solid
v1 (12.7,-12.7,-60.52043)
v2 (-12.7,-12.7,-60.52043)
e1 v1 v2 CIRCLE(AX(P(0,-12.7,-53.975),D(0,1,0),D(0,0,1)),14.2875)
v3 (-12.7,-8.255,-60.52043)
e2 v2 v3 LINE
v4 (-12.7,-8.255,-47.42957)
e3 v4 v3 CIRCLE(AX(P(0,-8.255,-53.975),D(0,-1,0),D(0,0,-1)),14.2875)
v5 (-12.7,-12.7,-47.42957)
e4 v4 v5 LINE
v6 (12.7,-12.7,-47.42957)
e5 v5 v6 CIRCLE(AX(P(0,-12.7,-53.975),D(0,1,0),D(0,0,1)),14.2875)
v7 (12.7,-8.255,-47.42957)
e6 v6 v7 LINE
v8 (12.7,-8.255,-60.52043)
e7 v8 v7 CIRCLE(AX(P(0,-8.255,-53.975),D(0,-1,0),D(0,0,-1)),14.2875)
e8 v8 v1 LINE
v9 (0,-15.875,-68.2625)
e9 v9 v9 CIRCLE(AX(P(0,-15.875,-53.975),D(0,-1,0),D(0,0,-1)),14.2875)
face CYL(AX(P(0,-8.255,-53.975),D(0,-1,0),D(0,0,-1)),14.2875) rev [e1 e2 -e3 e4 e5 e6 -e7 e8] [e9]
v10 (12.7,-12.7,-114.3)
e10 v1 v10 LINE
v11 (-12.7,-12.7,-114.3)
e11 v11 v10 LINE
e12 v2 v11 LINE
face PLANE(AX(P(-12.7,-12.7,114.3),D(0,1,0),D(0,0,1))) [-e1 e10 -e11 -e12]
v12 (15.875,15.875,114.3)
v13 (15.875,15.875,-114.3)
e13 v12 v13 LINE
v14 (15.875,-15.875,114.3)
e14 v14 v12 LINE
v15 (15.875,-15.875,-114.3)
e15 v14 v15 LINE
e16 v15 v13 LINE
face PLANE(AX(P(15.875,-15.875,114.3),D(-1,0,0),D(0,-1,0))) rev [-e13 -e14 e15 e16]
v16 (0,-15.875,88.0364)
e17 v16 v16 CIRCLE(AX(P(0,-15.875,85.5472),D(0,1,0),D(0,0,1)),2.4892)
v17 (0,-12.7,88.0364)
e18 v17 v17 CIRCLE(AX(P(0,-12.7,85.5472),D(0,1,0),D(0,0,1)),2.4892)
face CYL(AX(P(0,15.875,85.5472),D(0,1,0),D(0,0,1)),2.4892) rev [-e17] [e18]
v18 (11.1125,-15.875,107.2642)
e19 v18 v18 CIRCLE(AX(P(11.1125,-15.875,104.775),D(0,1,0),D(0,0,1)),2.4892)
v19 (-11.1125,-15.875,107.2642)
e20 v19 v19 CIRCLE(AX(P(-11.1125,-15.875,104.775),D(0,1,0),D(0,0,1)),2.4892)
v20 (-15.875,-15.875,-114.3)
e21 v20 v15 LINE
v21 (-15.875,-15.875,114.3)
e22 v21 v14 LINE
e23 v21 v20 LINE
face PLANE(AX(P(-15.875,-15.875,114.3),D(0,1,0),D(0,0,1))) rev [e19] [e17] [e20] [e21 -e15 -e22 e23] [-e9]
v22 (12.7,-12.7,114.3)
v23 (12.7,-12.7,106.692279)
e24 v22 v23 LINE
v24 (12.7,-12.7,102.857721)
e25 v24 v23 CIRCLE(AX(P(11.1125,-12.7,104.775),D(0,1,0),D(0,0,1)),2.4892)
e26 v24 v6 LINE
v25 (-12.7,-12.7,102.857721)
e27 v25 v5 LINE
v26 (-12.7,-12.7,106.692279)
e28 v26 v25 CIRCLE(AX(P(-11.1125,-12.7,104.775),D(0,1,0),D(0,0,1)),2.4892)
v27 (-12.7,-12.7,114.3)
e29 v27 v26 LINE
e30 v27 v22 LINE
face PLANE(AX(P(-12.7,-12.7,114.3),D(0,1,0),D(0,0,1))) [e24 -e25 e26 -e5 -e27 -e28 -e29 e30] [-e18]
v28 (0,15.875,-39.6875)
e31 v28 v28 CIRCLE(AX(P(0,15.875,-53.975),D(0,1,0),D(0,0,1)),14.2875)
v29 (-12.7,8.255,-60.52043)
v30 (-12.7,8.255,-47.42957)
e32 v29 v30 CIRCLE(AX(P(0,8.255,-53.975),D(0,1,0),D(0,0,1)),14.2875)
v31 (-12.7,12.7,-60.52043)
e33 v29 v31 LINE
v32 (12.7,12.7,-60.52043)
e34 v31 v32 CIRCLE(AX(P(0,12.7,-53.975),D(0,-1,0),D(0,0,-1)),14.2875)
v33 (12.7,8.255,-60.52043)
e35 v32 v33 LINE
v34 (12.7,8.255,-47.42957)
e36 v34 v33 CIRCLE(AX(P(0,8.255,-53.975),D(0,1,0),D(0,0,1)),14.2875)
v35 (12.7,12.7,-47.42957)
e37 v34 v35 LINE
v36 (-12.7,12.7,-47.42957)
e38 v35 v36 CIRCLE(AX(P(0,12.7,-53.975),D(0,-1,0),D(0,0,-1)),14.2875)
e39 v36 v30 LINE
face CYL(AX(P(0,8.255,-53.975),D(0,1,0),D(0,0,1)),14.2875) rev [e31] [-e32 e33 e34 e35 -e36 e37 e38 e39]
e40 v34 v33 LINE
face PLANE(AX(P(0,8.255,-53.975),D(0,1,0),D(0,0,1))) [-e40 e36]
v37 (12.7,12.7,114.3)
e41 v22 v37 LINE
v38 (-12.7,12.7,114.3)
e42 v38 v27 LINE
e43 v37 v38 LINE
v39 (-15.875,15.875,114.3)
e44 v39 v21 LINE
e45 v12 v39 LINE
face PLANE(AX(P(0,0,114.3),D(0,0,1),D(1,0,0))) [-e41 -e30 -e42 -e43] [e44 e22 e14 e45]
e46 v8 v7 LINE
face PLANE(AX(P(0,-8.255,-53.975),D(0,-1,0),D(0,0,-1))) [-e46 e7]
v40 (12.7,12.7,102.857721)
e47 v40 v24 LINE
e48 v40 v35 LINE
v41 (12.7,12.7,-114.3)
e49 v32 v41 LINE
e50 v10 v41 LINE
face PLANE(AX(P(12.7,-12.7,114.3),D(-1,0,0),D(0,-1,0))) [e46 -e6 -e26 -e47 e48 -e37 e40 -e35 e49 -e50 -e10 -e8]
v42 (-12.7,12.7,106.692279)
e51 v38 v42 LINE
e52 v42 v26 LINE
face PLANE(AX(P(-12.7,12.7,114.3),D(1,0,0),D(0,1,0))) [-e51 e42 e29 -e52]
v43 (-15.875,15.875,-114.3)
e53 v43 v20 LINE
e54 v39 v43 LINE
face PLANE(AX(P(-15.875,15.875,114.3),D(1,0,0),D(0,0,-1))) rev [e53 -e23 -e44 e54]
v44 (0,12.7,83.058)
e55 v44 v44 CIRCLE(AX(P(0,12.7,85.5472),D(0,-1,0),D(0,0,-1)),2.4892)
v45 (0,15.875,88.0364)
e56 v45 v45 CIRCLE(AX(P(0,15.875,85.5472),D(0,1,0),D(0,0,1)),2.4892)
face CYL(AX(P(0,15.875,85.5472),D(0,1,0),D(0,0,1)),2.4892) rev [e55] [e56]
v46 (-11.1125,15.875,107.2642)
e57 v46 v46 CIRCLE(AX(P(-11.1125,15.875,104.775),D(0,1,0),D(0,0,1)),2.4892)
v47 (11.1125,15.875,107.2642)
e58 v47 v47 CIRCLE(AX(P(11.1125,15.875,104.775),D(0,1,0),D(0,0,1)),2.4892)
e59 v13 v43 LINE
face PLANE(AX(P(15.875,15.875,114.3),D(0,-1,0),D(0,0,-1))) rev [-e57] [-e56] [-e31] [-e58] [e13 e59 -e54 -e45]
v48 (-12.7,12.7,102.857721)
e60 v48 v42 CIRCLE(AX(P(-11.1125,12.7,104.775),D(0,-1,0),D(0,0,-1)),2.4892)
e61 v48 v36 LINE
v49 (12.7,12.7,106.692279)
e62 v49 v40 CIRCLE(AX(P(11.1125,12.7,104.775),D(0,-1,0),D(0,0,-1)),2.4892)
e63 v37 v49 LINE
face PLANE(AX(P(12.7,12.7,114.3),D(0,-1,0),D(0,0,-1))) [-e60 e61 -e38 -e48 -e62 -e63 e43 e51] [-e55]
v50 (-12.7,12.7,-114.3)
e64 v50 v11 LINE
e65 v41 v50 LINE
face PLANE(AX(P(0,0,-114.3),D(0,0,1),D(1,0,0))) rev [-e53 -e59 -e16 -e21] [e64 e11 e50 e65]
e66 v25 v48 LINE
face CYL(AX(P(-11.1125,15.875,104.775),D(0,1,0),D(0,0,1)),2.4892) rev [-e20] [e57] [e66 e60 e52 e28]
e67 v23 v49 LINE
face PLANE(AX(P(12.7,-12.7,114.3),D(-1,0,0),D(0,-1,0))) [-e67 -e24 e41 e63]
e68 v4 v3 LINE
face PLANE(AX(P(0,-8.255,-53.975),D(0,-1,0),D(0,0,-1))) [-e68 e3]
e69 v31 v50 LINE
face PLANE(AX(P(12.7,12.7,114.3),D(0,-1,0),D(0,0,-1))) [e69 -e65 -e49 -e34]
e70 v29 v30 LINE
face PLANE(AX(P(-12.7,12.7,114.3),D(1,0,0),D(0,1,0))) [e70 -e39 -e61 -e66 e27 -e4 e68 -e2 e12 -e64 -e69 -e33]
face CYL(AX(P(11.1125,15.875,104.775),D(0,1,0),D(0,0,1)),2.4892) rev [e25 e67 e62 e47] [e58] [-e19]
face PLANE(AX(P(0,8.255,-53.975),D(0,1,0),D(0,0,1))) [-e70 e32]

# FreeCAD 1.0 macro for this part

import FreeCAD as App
import Part
import Sketcher
from FreeCAD import Vector
Q = App.Units.Quantity

doc = App.newDocument("Part")
body = doc.addObject("PartDesign::Body", "Body")

sketch1 = body.newObject("Sketcher::SketchObject", "Sketch")
sketch1.AttachmentSupport = (doc.getObject("XY_Plane"), [""])
sketch1.MapMode = "FlatFace"
sketch1.addGeometry([
    Part.LineSegment(Vector(-15.875, 15.875, 0), Vector(-15.875, -15.875, 0)),
    Part.LineSegment(Vector(-15.875, -15.875, 0), Vector(15.875, -15.875, 0)),
    Part.LineSegment(Vector(15.875, -15.875, 0), Vector(15.875, 15.875, 0)),
    Part.LineSegment(Vector(15.875, 15.875, 0), Vector(-15.875, 15.875, 0)),
    Part.LineSegment(Vector(12.7, -12.7, 0), Vector(-12.7, -12.7, 0)),
    Part.LineSegment(Vector(-12.7, -12.7, 0), Vector(-12.7, 12.7, 0)),
    Part.LineSegment(Vector(-12.7, 12.7, 0), Vector(12.7, 12.7, 0)),
    Part.LineSegment(Vector(12.7, 12.7, 0), Vector(12.7, -12.7, 0)),
], False)
sketch1.addConstraint([
    Sketcher.Constraint("Coincident", 0, 2, 1, 1),
    Sketcher.Constraint("Coincident", 1, 2, 2, 1),
    Sketcher.Constraint("Coincident", 2, 2, 3, 1),
    Sketcher.Constraint("Coincident", 3, 2, 0, 1),
    Sketcher.Constraint("Coincident", 4, 2, 5, 1),
    Sketcher.Constraint("Coincident", 5, 2, 6, 1),
    Sketcher.Constraint("Coincident", 6, 2, 7, 1),
    Sketcher.Constraint("Coincident", 7, 2, 4, 1),
    Sketcher.Constraint("Vertical", 0),
    Sketcher.Constraint("Horizontal", 1),
    Sketcher.Constraint("Vertical", 2),
    Sketcher.Constraint("Horizontal", 3),
    Sketcher.Constraint("Horizontal", 4),
    Sketcher.Constraint("Vertical", 5),
    Sketcher.Constraint("Horizontal", 6),
    Sketcher.Constraint("Vertical", 7),
    Sketcher.Constraint("Symmetric", 0, 2, 2, 2, -1, 1),
    Sketcher.Constraint("Symmetric", 4, 2, 6, 2, -1, 1),
    Sketcher.Constraint("Equal", 3, 0),
    Sketcher.Constraint("Equal", 6, 5),
    Sketcher.Constraint("DistanceX", 4, 2, 4, 1, Q("1 in")),
    Sketcher.Constraint("DistanceX", 1, 1, 1, 2, Q("1.25 in")),
])
pad1 = body.newObject("PartDesign::Pad", "Pad")
pad1.Profile = sketch1
pad1.Type = "TwoLengths"
pad1.Length = Q("4.5 in")
pad1.Length2 = Q("4.5 in")

sketch2 = body.newObject("Sketcher::SketchObject", "Sketch001")
sketch2.AttachmentSupport = (doc.getObject("XZ_Plane"), [""])
sketch2.MapMode = "FlatFace"
sketch2.AttachmentOffset = App.Placement(Vector(0, 0, -0.625 * 25.4), App.Rotation())
sketch2.addGeometry([
    Part.Circle(Vector(-11.1125, 104.775, 0), Vector(0, 0, 1), 2.4892),
    Part.Circle(Vector(11.1125, 104.775, 0), Vector(0, 0, 1), 2.4892),
    Part.Circle(Vector(0, 85.5472, 0), Vector(0, 0, 1), 2.4892),
], False)
sketch2.addConstraint([
    Sketcher.Constraint("Equal", 0, 1),
    Sketcher.Constraint("Equal", 1, 2),
    Sketcher.Constraint("Symmetric", 0, 3, 1, 3, -2),
    Sketcher.Constraint("PointOnObject", 2, 3, -2),
    Sketcher.Constraint("Diameter", 0, Q("0.196 in")),
    Sketcher.Constraint("DistanceX", 0, 3, -1, 1, Q("0.4375 in")),
    Sketcher.Constraint("DistanceY", -1, 1, 0, 3, Q("4.125 in")),
    Sketcher.Constraint("DistanceY", -1, 1, 2, 3, Q("3.368 in")),
])
doc.recompute()
hole = body.newObject("PartDesign::Hole", "Hole")
hole.Profile = sketch2
hole.ThreadType = "None"
hole.Diameter = Q("0.196 in")
hole.DepthType = "ThroughAll"
hole.Reversed = True

sketch3 = body.newObject("Sketcher::SketchObject", "Sketch002")
sketch3.AttachmentSupport = (doc.getObject("XZ_Plane"), [""])
sketch3.MapMode = "FlatFace"
sketch3.AttachmentOffset = App.Placement(Vector(0, 0, -0.625 * 25.4), App.Rotation())
sketch3.addGeometry(Part.Circle(Vector(0, -53.975, 0), Vector(0, 0, 1), 14.2875), False)
sketch3.addConstraint([
    Sketcher.Constraint("PointOnObject", 0, 3, -2),
    Sketcher.Constraint("Diameter", 0, Q("1.125 in")),
    Sketcher.Constraint("DistanceY", 0, 3, -1, 1, Q("2.125 in")),
])
pocket1 = body.newObject("PartDesign::Pocket", "Pocket")
pocket1.Profile = sketch3
pocket1.Length = Q("0.3 in")
pocket1.Reversed = True

sketch4 = body.newObject("Sketcher::SketchObject", "Sketch003")
sketch4.AttachmentSupport = (doc.getObject("XZ_Plane"), [""])
sketch4.MapMode = "FlatFace"
sketch4.AttachmentOffset = App.Placement(Vector(0, 0, 0.325 * 25.4), App.Rotation())
sketch4.addGeometry(Part.Circle(Vector(0, -53.975, 0), Vector(0, 0, 1), 14.2875), False)
sketch4.addConstraint([
    Sketcher.Constraint("PointOnObject", 0, 3, -2),
    Sketcher.Constraint("Diameter", 0, Q("1.125 in")),
    Sketcher.Constraint("DistanceY", 0, 3, -1, 1, Q("2.125 in")),
])
pocket2 = body.newObject("PartDesign::Pocket", "Pocket001")
pocket2.Profile = sketch4
pocket2.Length = Q("0.3 in")
pocket2.Reversed = True

doc.recompute()
